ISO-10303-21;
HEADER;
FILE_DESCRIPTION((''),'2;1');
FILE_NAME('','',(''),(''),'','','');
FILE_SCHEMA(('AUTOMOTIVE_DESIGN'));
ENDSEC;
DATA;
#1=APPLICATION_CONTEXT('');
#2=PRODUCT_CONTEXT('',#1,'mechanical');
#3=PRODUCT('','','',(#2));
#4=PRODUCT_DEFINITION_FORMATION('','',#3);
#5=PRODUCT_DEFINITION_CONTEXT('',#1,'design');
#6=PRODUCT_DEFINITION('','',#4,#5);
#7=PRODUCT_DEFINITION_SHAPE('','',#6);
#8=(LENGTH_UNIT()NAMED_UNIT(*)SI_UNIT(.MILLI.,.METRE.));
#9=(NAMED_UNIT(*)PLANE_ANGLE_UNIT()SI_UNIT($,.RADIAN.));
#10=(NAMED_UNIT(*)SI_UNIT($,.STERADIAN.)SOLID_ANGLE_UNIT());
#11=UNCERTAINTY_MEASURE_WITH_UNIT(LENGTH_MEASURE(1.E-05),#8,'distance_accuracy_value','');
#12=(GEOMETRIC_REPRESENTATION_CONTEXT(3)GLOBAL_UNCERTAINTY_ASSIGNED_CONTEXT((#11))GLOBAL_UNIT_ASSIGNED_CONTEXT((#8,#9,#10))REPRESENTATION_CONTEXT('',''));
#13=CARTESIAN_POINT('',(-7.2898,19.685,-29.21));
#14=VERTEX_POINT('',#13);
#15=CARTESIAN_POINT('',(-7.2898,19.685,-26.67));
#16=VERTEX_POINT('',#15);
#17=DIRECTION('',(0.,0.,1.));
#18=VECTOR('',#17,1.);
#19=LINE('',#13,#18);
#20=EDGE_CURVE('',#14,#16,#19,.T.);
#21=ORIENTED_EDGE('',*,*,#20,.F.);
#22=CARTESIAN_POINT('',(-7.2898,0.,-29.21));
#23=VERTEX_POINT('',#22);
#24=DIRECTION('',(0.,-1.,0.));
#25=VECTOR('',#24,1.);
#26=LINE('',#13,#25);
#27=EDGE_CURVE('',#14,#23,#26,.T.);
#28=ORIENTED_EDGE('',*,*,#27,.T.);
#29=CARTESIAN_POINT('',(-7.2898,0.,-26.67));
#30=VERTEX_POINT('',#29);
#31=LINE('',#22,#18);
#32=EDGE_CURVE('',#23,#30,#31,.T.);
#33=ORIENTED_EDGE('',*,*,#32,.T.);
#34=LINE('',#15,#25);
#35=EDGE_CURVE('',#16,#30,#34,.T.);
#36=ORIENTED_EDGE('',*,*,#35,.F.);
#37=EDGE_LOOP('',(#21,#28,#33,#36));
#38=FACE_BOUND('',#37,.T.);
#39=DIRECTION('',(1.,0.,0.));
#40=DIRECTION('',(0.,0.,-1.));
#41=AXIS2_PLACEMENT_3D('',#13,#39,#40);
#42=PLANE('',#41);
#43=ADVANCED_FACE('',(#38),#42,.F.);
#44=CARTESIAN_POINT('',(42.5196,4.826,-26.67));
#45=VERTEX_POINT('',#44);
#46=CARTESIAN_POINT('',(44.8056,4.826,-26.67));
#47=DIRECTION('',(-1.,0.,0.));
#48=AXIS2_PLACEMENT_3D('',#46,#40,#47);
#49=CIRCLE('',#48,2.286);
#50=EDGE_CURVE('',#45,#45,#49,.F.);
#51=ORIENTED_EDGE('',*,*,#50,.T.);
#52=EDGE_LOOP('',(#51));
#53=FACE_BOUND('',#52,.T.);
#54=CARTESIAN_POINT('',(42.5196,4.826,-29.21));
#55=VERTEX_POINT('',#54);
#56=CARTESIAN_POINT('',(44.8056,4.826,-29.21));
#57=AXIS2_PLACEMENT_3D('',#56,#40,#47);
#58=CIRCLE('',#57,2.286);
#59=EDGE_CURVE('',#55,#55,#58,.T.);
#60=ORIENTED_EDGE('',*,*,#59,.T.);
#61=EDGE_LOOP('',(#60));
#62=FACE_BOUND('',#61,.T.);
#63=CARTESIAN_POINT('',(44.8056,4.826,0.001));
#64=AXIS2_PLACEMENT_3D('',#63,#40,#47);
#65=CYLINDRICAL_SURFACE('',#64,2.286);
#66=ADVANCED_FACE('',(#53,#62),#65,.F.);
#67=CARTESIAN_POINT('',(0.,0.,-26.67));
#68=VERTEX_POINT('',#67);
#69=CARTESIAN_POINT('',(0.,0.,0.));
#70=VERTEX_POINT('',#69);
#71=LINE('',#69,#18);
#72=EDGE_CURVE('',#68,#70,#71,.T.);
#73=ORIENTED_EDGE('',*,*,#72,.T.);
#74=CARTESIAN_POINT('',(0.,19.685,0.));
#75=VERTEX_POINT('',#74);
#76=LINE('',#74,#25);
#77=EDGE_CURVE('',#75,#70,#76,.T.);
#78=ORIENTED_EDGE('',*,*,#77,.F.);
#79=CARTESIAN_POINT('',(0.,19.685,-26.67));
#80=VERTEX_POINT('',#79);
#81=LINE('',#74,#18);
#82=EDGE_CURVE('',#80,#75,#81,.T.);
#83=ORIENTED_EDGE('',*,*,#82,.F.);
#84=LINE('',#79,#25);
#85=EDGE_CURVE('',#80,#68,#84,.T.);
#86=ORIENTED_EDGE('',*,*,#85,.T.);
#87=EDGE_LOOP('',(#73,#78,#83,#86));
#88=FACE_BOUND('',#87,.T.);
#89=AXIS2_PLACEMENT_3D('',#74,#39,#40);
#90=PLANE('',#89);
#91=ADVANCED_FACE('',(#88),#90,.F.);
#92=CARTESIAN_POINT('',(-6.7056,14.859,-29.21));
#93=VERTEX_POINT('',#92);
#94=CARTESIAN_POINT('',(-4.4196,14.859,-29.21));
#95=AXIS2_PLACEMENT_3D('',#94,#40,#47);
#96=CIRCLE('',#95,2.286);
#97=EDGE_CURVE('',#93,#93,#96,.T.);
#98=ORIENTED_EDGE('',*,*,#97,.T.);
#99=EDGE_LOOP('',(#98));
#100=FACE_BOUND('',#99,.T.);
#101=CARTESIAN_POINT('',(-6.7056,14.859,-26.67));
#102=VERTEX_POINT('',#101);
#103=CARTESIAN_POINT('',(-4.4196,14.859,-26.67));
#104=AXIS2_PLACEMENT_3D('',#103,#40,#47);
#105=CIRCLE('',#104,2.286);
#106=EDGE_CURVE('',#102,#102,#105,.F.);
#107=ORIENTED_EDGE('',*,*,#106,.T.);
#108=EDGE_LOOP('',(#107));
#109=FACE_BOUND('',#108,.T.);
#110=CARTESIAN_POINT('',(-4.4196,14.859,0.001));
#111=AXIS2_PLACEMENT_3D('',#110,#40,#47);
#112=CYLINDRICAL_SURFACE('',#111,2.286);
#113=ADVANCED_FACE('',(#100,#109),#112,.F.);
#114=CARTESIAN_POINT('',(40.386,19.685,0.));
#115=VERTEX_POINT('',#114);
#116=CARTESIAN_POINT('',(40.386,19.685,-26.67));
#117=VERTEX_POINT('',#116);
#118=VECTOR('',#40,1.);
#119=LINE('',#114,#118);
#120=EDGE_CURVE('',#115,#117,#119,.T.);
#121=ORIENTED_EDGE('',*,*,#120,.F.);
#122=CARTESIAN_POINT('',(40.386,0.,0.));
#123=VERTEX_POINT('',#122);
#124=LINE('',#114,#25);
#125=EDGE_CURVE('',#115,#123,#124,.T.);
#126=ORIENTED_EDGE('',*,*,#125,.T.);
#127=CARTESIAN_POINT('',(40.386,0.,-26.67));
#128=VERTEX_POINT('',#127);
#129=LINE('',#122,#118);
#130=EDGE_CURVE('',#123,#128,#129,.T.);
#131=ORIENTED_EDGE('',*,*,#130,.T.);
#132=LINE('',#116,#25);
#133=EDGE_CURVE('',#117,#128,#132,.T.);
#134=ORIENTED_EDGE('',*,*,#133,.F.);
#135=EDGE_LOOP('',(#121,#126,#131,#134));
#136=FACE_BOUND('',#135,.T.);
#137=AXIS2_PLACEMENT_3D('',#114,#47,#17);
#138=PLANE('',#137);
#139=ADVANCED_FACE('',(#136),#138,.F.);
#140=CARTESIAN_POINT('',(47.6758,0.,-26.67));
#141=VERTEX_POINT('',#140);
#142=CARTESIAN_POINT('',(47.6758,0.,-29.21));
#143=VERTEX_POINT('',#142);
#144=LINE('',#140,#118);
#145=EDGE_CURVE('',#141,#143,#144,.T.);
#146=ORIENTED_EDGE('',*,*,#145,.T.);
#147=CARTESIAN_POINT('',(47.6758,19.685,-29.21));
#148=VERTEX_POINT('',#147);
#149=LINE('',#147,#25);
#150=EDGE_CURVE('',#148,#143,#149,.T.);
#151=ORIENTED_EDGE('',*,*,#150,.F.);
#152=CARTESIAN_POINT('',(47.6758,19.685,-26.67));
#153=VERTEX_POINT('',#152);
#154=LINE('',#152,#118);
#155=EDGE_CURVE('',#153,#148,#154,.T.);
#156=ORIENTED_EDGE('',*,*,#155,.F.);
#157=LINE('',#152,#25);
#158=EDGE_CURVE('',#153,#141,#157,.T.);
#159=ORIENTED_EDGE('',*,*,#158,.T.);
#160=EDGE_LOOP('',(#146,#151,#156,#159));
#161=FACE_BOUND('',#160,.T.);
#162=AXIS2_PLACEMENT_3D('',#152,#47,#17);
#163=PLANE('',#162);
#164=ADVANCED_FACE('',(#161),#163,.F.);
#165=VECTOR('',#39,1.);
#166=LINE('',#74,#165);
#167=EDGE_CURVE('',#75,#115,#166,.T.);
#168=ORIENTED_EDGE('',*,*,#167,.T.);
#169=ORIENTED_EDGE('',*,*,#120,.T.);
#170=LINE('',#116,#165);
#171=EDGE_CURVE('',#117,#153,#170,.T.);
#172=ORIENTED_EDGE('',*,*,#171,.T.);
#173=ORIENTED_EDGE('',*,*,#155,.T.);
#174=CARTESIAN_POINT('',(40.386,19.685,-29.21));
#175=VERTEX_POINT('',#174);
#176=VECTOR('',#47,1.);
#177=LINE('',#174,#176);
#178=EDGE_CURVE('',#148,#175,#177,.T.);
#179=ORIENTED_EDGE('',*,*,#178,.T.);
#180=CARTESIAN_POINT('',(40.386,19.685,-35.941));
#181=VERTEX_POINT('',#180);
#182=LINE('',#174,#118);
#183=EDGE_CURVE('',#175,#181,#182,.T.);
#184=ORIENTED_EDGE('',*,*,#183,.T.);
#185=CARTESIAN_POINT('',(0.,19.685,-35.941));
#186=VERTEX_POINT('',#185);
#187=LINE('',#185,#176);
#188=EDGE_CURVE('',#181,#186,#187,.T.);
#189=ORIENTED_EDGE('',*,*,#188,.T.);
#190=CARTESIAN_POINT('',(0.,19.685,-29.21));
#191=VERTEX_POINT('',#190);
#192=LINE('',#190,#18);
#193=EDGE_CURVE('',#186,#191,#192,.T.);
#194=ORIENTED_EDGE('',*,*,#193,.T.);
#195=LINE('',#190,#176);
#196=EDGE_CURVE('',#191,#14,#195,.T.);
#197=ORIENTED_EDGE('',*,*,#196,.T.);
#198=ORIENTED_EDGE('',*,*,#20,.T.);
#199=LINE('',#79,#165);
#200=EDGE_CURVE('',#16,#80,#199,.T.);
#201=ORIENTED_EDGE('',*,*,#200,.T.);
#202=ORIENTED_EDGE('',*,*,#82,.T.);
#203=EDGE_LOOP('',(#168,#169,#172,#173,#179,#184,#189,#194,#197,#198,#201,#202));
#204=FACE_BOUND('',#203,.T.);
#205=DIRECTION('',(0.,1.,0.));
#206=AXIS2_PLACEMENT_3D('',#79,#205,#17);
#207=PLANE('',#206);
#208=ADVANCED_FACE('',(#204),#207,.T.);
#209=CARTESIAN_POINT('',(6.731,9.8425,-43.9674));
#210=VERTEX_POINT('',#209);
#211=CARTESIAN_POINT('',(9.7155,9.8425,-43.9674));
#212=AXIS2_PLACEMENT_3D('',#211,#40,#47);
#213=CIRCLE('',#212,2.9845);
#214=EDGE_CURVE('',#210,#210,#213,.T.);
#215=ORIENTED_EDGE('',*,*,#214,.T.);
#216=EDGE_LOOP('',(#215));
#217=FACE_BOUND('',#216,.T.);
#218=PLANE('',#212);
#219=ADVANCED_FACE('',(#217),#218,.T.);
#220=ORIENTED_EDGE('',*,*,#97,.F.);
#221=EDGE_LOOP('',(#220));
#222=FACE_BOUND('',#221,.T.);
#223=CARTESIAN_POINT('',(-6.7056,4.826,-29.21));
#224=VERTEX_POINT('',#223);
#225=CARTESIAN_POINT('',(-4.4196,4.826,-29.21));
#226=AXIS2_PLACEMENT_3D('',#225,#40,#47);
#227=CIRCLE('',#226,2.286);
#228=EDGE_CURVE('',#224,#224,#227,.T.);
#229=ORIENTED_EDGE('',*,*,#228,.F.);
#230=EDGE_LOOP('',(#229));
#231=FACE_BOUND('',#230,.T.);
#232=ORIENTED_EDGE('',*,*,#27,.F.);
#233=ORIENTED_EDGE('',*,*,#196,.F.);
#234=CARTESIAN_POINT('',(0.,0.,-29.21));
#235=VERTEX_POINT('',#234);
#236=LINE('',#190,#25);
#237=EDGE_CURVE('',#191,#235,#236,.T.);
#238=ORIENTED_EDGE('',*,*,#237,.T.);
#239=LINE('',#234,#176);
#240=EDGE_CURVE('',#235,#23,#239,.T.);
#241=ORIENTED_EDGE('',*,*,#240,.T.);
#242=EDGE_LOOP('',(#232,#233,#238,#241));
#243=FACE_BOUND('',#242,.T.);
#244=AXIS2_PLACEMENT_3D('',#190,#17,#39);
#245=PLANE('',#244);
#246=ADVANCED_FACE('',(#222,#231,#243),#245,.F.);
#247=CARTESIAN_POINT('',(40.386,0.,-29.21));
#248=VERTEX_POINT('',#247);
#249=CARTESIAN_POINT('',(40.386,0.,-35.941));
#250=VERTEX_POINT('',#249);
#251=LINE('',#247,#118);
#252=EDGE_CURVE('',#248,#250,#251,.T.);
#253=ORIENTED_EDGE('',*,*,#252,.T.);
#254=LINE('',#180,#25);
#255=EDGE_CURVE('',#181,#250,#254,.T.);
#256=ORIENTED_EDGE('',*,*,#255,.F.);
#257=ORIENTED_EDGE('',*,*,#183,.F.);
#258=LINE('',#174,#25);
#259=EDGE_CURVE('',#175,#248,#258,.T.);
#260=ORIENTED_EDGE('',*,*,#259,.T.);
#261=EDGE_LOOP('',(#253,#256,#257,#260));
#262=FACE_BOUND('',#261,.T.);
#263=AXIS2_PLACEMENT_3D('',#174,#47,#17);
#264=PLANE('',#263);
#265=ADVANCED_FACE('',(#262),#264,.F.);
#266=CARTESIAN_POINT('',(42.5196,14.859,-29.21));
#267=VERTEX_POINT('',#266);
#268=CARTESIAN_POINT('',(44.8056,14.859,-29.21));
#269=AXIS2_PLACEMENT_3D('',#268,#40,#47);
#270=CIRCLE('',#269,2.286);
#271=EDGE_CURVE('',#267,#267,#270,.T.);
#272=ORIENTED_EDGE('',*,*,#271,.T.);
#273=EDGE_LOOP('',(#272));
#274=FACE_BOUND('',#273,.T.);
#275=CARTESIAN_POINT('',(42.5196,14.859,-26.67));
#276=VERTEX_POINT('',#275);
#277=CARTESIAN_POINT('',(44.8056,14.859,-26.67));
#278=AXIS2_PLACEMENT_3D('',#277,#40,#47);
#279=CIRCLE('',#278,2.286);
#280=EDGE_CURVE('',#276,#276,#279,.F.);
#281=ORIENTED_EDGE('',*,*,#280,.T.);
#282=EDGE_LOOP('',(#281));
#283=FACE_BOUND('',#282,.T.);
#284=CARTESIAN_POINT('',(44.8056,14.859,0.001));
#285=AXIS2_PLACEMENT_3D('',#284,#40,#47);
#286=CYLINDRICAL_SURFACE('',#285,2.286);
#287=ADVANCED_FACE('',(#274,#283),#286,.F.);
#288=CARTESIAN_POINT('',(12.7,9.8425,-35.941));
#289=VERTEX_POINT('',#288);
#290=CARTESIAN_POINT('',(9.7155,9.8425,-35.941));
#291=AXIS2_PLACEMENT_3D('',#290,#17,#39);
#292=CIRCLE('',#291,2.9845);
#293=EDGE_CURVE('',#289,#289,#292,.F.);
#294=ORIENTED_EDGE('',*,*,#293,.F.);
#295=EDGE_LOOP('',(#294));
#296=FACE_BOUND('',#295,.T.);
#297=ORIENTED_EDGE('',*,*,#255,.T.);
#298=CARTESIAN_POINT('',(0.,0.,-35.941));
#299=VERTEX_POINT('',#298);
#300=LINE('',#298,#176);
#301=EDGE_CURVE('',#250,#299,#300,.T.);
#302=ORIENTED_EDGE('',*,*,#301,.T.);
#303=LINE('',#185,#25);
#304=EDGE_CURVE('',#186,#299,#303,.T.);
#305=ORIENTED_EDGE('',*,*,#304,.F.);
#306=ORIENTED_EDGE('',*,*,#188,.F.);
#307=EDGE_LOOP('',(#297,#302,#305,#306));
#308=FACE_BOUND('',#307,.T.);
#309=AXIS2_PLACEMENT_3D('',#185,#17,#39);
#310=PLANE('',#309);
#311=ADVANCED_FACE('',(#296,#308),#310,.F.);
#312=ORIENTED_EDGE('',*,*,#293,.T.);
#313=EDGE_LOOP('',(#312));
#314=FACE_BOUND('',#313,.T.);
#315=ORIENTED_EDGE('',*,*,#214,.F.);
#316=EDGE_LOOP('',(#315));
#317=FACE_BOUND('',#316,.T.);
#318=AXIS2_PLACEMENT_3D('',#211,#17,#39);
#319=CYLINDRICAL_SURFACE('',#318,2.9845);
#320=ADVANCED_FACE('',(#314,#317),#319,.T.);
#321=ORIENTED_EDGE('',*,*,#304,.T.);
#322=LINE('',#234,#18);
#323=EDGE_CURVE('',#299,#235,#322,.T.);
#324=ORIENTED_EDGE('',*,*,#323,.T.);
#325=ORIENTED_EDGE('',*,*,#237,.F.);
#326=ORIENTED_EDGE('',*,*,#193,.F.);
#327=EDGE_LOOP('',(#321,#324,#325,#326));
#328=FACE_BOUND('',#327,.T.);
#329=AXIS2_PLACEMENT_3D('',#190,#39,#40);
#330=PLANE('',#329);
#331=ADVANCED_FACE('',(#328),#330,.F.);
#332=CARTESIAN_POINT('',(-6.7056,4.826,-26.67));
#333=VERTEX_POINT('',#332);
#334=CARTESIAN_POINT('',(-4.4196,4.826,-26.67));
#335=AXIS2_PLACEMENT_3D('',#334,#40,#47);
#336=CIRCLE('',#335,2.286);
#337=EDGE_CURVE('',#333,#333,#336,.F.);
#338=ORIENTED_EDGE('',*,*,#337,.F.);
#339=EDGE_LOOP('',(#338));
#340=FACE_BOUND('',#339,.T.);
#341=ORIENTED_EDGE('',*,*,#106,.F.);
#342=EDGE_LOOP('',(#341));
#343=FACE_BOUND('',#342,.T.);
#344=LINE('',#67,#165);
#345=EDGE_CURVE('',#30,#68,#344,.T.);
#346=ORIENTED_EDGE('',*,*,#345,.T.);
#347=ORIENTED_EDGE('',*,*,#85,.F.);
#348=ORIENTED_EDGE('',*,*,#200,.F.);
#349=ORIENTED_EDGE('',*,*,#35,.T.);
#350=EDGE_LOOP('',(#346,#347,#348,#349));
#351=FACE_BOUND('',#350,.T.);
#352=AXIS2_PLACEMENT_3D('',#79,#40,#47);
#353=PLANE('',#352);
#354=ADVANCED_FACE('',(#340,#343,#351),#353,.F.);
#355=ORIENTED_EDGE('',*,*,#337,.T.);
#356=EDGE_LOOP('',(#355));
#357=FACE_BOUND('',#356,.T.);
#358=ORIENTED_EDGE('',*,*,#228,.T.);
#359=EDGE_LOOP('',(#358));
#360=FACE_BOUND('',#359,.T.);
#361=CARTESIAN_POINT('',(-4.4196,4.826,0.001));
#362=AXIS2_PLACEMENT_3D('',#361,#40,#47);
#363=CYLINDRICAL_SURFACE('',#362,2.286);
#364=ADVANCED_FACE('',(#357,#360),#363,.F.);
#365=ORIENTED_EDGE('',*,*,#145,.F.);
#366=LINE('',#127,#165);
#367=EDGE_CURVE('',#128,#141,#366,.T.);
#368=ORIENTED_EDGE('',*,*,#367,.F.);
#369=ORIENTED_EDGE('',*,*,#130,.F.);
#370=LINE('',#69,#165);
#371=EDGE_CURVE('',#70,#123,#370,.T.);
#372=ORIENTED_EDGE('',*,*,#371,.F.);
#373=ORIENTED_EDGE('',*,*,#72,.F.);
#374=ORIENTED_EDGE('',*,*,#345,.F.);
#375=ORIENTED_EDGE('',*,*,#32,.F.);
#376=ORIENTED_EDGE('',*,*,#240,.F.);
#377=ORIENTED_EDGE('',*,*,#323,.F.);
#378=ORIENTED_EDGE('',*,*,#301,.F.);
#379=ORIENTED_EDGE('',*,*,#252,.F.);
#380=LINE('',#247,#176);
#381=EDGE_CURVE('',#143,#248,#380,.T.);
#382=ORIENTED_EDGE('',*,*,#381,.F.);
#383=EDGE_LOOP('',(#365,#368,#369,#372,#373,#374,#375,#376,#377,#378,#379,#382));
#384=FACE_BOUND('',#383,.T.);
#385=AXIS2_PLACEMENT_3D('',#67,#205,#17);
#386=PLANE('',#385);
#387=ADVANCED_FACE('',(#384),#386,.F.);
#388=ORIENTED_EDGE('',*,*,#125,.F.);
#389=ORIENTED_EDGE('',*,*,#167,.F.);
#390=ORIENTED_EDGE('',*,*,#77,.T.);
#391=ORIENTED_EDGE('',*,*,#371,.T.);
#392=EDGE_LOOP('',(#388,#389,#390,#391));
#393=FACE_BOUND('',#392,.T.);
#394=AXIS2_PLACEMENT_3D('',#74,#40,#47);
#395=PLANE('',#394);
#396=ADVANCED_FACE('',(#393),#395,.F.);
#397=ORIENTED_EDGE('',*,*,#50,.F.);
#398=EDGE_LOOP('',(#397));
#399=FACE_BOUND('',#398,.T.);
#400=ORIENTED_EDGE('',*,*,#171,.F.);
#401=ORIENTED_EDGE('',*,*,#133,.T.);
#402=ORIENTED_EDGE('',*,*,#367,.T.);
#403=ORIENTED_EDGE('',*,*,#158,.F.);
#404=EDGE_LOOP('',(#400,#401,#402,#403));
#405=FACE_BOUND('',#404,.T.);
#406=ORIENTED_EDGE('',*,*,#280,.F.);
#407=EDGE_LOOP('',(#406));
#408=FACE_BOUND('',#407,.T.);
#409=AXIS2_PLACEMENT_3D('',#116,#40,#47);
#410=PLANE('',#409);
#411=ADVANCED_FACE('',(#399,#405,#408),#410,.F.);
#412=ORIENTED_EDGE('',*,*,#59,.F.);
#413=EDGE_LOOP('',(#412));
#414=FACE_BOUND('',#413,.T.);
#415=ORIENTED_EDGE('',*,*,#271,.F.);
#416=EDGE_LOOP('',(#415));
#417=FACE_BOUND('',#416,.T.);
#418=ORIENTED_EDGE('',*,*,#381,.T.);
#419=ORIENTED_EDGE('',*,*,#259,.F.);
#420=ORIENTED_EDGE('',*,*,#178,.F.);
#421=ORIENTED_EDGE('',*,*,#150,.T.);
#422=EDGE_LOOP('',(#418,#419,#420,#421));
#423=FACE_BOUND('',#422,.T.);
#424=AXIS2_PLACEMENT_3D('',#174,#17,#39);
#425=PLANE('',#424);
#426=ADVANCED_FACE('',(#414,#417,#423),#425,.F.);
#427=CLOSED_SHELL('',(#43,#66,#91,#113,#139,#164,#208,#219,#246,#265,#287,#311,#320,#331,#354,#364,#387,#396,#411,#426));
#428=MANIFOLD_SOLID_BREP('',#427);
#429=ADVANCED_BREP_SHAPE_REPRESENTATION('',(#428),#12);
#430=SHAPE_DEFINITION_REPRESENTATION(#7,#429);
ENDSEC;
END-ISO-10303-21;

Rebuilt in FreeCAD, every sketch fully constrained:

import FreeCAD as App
import Part
import Sketcher
from FreeCAD import Vector
Q = App.Units.Quantity


def add_polygon(sketch, points):
    """Adds a closed chain of lines whose ends are joined by coincident constraints."""
    first, n = sketch.GeometryCount, len(points)
    for a, b in zip(points, points[1:] + points[:1]):
        sketch.addGeometry(Part.LineSegment(App.Vector(*a, 0), App.Vector(*b, 0)), False)
    for i in range(n):
        sketch.addConstraint(Sketcher.Constraint("Coincident", first + i, 2, first + (i + 1) % n, 1))

doc = App.newDocument("Part")
body = doc.addObject("PartDesign::Body", "Body")

sketch1 = doc.addObject("Sketcher::SketchObject", "Sketch")
body.addObject(sketch1)
sketch1.AttachmentSupport = (doc.XZ_Plane, [""])
sketch1.MapMode = "FlatFace"
add_polygon(sketch1, [(0, -35.941), (0, -29.21), (-7.2898, -29.21), (-7.2898, -26.67), (0, -26.67), (0, 0), (40.386, 0), (40.386, -26.67), (47.6758, -26.67), (47.6758, -29.21), (40.386, -29.21), (40.386, -35.941)])
sketch1.addConstraint([
    Sketcher.Constraint("Vertical", 0),
    Sketcher.Constraint("Horizontal", 1),
    Sketcher.Constraint("Vertical", 2),
    Sketcher.Constraint("Horizontal", 3),
    Sketcher.Constraint("Vertical", 4),
    Sketcher.Constraint("Horizontal", 5),
    Sketcher.Constraint("Vertical", 6),
    Sketcher.Constraint("Horizontal", 7),
    Sketcher.Constraint("Vertical", 8),
    Sketcher.Constraint("Horizontal", 9),
    Sketcher.Constraint("Vertical", 10),
    Sketcher.Constraint("Horizontal", 11),
    Sketcher.Constraint("Coincident", 4, 2, -1, 1),
    Sketcher.Constraint("PointOnObject", 0, 2, -2),
    Sketcher.Constraint("Horizontal", 3, 2, 6, 2),
    Sketcher.Constraint("Horizontal", 1, 2, 8, 2),
    Sketcher.Constraint("Vertical", 6, 2, 9, 2),
    Sketcher.Constraint("Equal", 3, 7),
    Sketcher.Constraint("DistanceY", 2, 1, 2, 2, Q("0.1 in")),
    Sketcher.Constraint("DistanceX", 5, 1, 5, 2, Q("1.59 in")),
    Sketcher.Constraint("DistanceY", 4, 1, 4, 2, Q("1.05 in")),
    Sketcher.Constraint("DistanceX", 1, 2, 1, 1, Q("0.287 in")),
    Sketcher.Constraint("DistanceY", 0, 1, 0, 2, Q("0.265 in")),
])
pad1 = doc.addObject("PartDesign::Pad", "Pad")
body.addObject(pad1)
pad1.Profile = sketch1
pad1.Length = Q("0.775 in")
pad1.Reversed = True

sketch2 = doc.addObject("Sketcher::SketchObject", "Sketch001")
body.addObject(sketch2)
sketch2.AttachmentSupport = (doc.XY_Plane, [""])
sketch2.MapMode = "FlatFace"
sketch2.AttachmentOffset = App.Placement(Vector(0, 0, -1.415 * 25.4), App.Rotation())
sketch2.addGeometry(Part.Circle(Vector(9.7155, 9.8425, 0), Vector(0, 0, 1), 2.9845), False)
sketch2.addConstraint([
    Sketcher.Constraint("Diameter", 0, Q("0.235 in")),
    Sketcher.Constraint("DistanceX", -1, 1, 0, 3, Q("0.3825 in")),
    Sketcher.Constraint("DistanceY", -1, 1, 0, 3, Q("0.3875 in")),
])
pad2 = doc.addObject("PartDesign::Pad", "Pad001")
body.addObject(pad2)
pad2.Profile = sketch2
pad2.Length = Q("0.316 in")
pad2.Reversed = True

sketch3 = doc.addObject("Sketcher::SketchObject", "Sketch002")
body.addObject(sketch3)
sketch3.AttachmentSupport = (doc.XY_Plane, [""])
sketch3.MapMode = "FlatFace"
sketch3.AttachmentOffset = App.Placement(Vector(0, 0, -1.15 * 25.4), App.Rotation())
sketch3.addGeometry(Part.Circle(Vector(44.8056, 14.859, 0), Vector(0, 0, 1), 2.286), False)
sketch3.addConstraint([
    Sketcher.Constraint("Diameter", 0, Q("0.18 in")),
    Sketcher.Constraint("DistanceX", -1, 1, 0, 3, Q("1.764 in")),
    Sketcher.Constraint("DistanceY", -1, 1, 0, 3, Q("0.585 in")),
])
pocket1 = doc.addObject("PartDesign::Pocket", "Pocket")
body.addObject(pocket1)
pocket1.Profile = sketch3
pocket1.Type = "UpToFirst"
pocket1.Reversed = True

sketch4 = doc.addObject("Sketcher::SketchObject", "Sketch003")
body.addObject(sketch4)
sketch4.AttachmentSupport = (doc.XY_Plane, [""])
sketch4.MapMode = "FlatFace"
sketch4.AttachmentOffset = App.Placement(Vector(0, 0, -1.15 * 25.4), App.Rotation())
sketch4.addGeometry(Part.Circle(Vector(44.8056, 4.826, 0), Vector(0, 0, 1), 2.286), False)
sketch4.addConstraint([
    Sketcher.Constraint("Diameter", 0, Q("0.18 in")),
    Sketcher.Constraint("DistanceY", -1, 1, 0, 3, Q("0.19 in")),
    Sketcher.Constraint("DistanceX", -1, 1, 0, 3, Q("1.764 in")),
])
pocket2 = doc.addObject("PartDesign::Pocket", "Pocket001")
body.addObject(pocket2)
pocket2.Profile = sketch4
pocket2.Type = "UpToFirst"
pocket2.Reversed = True

sketch5 = doc.addObject("Sketcher::SketchObject", "Sketch004")
body.addObject(sketch5)
sketch5.AttachmentSupport = (doc.XY_Plane, [""])
sketch5.MapMode = "FlatFace"
sketch5.AttachmentOffset = App.Placement(Vector(0, 0, -1.15 * 25.4), App.Rotation())
sketch5.addGeometry(Part.Circle(Vector(-4.4196, 14.859, 0), Vector(0, 0, 1), 2.286), False)
sketch5.addConstraint([
    Sketcher.Constraint("Diameter", 0, Q("0.18 in")),
    Sketcher.Constraint("DistanceX", 0, 3, -1, 1, Q("0.174 in")),
    Sketcher.Constraint("DistanceY", -1, 1, 0, 3, Q("0.585 in")),
])
pocket3 = doc.addObject("PartDesign::Pocket", "Pocket002")
body.addObject(pocket3)
pocket3.Profile = sketch5
pocket3.Type = "UpToFirst"
pocket3.Reversed = True

sketch6 = doc.addObject("Sketcher::SketchObject", "Sketch005")
body.addObject(sketch6)
sketch6.AttachmentSupport = (doc.XY_Plane, [""])
sketch6.MapMode = "FlatFace"
sketch6.AttachmentOffset = App.Placement(Vector(0, 0, -1.15 * 25.4), App.Rotation())
sketch6.addGeometry(Part.Circle(Vector(-4.4196, 4.826, 0), Vector(0, 0, 1), 2.286), False)
sketch6.addConstraint([
    Sketcher.Constraint("Diameter", 0, Q("0.18 in")),
    Sketcher.Constraint("DistanceY", -1, 1, 0, 3, Q("0.19 in")),
    Sketcher.Constraint("DistanceX", 0, 3, -1, 1, Q("0.174 in")),
])
pocket4 = doc.addObject("PartDesign::Pocket", "Pocket003")
body.addObject(pocket4)
pocket4.Profile = sketch6
pocket4.Type = "UpToFirst"
pocket4.Reversed = True

doc.recompute()
